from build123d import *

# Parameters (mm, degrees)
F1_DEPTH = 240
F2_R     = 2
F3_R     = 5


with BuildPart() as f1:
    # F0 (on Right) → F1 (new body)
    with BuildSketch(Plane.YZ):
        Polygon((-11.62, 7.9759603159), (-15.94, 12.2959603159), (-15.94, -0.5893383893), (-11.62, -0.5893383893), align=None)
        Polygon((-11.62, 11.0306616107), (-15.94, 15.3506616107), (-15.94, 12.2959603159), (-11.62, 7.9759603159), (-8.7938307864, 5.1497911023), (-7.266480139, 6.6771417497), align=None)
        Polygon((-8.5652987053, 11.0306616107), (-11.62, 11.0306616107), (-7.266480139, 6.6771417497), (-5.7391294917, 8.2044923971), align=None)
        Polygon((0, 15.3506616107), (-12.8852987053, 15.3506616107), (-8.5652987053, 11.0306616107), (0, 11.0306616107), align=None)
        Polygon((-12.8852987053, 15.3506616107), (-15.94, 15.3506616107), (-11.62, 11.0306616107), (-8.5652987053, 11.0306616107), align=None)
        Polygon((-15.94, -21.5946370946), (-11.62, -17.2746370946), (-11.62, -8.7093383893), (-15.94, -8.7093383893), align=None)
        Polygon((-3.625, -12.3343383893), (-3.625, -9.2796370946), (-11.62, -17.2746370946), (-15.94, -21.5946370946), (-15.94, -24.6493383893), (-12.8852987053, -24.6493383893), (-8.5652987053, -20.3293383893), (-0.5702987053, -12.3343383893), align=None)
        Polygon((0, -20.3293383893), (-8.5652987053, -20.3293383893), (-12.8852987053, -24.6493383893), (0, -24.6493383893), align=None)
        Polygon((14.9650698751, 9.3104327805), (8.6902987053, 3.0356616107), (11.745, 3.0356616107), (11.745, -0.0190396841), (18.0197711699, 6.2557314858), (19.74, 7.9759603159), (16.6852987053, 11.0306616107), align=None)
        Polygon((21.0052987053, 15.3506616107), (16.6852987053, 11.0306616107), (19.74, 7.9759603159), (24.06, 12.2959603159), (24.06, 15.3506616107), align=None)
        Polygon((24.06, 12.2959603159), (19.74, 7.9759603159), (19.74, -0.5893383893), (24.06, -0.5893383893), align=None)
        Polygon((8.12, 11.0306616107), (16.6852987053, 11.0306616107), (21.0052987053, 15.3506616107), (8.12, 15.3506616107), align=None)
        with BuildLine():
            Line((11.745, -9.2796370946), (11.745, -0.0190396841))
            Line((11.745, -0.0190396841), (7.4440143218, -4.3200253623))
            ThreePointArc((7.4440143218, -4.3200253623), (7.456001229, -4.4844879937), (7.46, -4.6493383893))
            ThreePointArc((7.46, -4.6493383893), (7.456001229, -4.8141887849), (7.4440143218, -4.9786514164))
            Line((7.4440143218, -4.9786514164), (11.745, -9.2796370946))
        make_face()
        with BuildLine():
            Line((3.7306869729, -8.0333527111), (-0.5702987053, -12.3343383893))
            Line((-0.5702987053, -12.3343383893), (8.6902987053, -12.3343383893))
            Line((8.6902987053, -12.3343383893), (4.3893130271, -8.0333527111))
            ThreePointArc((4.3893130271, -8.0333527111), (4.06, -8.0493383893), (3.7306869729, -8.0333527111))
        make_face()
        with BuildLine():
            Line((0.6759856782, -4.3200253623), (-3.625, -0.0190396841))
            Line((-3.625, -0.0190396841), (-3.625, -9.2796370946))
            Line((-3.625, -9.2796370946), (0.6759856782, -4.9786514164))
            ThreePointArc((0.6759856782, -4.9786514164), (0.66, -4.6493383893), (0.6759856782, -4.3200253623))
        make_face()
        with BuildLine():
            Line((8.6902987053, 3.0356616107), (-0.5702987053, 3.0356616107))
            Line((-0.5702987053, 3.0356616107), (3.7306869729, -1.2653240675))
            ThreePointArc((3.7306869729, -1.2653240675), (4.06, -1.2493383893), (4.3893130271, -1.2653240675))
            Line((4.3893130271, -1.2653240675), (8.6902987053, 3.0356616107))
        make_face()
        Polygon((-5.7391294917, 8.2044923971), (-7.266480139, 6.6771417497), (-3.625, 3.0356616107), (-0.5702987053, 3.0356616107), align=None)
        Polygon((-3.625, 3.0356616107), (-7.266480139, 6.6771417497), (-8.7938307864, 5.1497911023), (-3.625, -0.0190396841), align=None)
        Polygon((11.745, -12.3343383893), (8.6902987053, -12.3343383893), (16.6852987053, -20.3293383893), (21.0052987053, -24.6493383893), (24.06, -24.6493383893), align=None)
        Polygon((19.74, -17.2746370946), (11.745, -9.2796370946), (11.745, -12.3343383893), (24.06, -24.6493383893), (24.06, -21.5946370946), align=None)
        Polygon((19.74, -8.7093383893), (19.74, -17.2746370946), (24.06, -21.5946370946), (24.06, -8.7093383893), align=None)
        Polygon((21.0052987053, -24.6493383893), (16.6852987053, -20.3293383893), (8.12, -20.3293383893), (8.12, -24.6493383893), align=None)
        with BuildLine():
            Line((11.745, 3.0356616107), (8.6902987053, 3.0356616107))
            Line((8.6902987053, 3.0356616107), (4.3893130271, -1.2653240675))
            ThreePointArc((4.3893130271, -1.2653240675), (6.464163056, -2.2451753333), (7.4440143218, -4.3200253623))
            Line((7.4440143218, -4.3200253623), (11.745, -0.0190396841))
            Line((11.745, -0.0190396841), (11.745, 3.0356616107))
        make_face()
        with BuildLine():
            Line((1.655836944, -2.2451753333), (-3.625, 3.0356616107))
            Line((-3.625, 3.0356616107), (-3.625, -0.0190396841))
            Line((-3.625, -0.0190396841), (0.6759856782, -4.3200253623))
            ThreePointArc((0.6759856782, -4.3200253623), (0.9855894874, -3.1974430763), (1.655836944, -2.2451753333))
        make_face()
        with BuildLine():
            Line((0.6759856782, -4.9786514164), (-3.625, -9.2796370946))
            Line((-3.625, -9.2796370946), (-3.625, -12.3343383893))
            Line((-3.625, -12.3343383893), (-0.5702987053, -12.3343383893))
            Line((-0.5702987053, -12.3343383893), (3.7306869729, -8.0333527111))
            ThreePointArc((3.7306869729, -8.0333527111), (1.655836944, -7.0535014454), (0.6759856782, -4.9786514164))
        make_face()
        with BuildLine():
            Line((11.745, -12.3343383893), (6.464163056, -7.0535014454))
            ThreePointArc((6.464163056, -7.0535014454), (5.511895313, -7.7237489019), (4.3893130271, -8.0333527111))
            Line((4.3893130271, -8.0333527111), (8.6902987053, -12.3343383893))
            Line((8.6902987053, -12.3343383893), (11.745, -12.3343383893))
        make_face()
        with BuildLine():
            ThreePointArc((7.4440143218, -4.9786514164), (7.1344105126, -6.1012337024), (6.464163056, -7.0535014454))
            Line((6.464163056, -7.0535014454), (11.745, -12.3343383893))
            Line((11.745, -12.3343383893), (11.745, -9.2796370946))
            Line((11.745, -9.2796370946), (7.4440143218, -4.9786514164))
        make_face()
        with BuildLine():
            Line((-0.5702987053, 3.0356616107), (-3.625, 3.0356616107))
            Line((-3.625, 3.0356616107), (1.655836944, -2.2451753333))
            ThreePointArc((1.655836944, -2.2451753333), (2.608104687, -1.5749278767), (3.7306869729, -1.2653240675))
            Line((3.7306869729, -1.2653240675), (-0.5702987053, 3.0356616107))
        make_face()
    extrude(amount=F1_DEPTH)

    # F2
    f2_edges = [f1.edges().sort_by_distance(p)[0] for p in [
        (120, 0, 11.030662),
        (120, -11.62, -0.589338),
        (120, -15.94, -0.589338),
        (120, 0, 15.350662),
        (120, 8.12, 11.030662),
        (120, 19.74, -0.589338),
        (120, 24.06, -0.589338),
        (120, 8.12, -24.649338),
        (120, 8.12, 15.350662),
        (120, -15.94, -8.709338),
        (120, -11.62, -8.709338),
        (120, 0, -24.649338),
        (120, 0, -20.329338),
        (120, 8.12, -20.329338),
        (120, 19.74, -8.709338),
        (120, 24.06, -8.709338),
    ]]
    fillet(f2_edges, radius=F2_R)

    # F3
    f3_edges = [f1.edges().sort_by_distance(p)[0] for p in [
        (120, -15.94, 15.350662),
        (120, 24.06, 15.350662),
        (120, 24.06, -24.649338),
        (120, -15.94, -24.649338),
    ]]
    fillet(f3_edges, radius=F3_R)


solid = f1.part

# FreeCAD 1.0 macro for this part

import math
import FreeCAD as App
import Part
import Sketcher


def edges_at(feature, points):
    """Names of the edges that pass closest to the given points."""
    edges = feature.Shape.Edges
    near = lambda p: min(range(len(edges)), key=lambda i: edges[i].distToShape(Part.Vertex(*p))[0])
    return sorted({f"Edge{near(p) + 1}" for p in points})

doc = App.newDocument("Part")
params = doc.addObject("Spreadsheet::Sheet", "Params")
for row, (alias, value) in enumerate([
    ("sketch1_radius", "3.4 mm"),
    ("sketch1_width", "15.94 mm"),
    ("sketch1_width2", "4.32 mm"),
    ("pad1_length", "240 mm"),
    ("fillet_radius", "2 mm"),
    ("fillet2_radius", "5 mm"),
], start=1):
    params.set(f"A{row}", alias)
    params.set(f"B{row}", "=" + value)
    params.setAlias(f"B{row}", alias)

body = doc.addObject("PartDesign::Body", "Body")

sketch1 = body.newObject("Sketcher::SketchObject", "Sketch")
sketch1.AttachmentSupport = (doc.getObject("YZ_Plane"), [""])
sketch1.MapMode = "FlatFace"
sketch1.addGeometry([
    Part.LineSegment(App.Vector(8.69, 3.04, 0), App.Vector(-0.57, 3.04, 0)),
    Part.LineSegment(App.Vector(-0.57, 3.04, 0), App.Vector(-8.57, 11.03, 0)),
    Part.LineSegment(App.Vector(-8.57, 11.03, 0), App.Vector(0, 11.03, 0)),
    Part.LineSegment(App.Vector(0, 11.03, 0), App.Vector(0, 15.35, 0)),
    Part.LineSegment(App.Vector(0, 15.35, 0), App.Vector(-15.94, 15.35, 0)),
    Part.LineSegment(App.Vector(-15.94, 15.35, 0), App.Vector(-15.94, -0.59, 0)),
    Part.LineSegment(App.Vector(-15.94, -0.59, 0), App.Vector(-11.62, -0.59, 0)),
    Part.LineSegment(App.Vector(-11.62, -0.59, 0), App.Vector(-11.62, 7.98, 0)),
    Part.LineSegment(App.Vector(-11.62, 7.98, 0), App.Vector(-3.62, -0.02, 0)),
    Part.LineSegment(App.Vector(-3.62, -0.02, 0), App.Vector(-3.62, -9.28, 0)),
    Part.LineSegment(App.Vector(-3.62, -9.28, 0), App.Vector(-11.62, -17.27, 0)),
    Part.LineSegment(App.Vector(-11.62, -17.27, 0), App.Vector(-11.62, -8.71, 0)),
    Part.LineSegment(App.Vector(-11.62, -8.71, 0), App.Vector(-15.94, -8.71, 0)),
    Part.LineSegment(App.Vector(-15.94, -8.71, 0), App.Vector(-15.94, -24.65, 0)),
    Part.LineSegment(App.Vector(-15.94, -24.65, 0), App.Vector(0, -24.65, 0)),
    Part.LineSegment(App.Vector(0, -24.65, 0), App.Vector(0, -20.33, 0)),
    Part.LineSegment(App.Vector(0, -20.33, 0), App.Vector(-8.57, -20.33, 0)),
    Part.LineSegment(App.Vector(-8.57, -20.33, 0), App.Vector(-0.57, -12.33, 0)),
    Part.LineSegment(App.Vector(-0.57, -12.33, 0), App.Vector(8.69, -12.33, 0)),
    Part.LineSegment(App.Vector(8.69, -12.33, 0), App.Vector(16.69, -20.33, 0)),
    Part.LineSegment(App.Vector(16.69, -20.33, 0), App.Vector(8.12, -20.33, 0)),
    Part.LineSegment(App.Vector(8.12, -20.33, 0), App.Vector(8.12, -24.65, 0)),
    Part.LineSegment(App.Vector(8.12, -24.65, 0), App.Vector(24.06, -24.65, 0)),
    Part.LineSegment(App.Vector(24.06, -24.65, 0), App.Vector(24.06, -8.71, 0)),
    Part.LineSegment(App.Vector(24.06, -8.71, 0), App.Vector(19.74, -8.71, 0)),
    Part.LineSegment(App.Vector(19.74, -8.71, 0), App.Vector(19.74, -17.27, 0)),
    Part.LineSegment(App.Vector(19.74, -17.27, 0), App.Vector(11.74, -9.28, 0)),
    Part.LineSegment(App.Vector(11.74, -9.28, 0), App.Vector(11.74, -0.02, 0)),
    Part.LineSegment(App.Vector(11.74, -0.02, 0), App.Vector(19.74, 7.98, 0)),
    Part.LineSegment(App.Vector(19.74, 7.98, 0), App.Vector(19.74, -0.59, 0)),
    Part.LineSegment(App.Vector(19.74, -0.59, 0), App.Vector(24.06, -0.59, 0)),
    Part.LineSegment(App.Vector(24.06, -0.59, 0), App.Vector(24.06, 15.35, 0)),
    Part.LineSegment(App.Vector(24.06, 15.35, 0), App.Vector(8.12, 15.35, 0)),
    Part.LineSegment(App.Vector(8.12, 15.35, 0), App.Vector(8.12, 11.03, 0)),
    Part.LineSegment(App.Vector(8.12, 11.03, 0), App.Vector(16.69, 11.03, 0)),
    Part.LineSegment(App.Vector(16.69, 11.03, 0), App.Vector(8.69, 3.04, 0)),
    Part.ArcOfCircle(Part.Circle(App.Vector(4.06, -4.65, 0), App.Vector(0, 0, 1), 3.4), math.radians(135), math.radians(174)),
    Part.ArcOfCircle(Part.Circle(App.Vector(4.06, -4.65, 0), App.Vector(0, 0, 1), 3.4), math.radians(96), math.radians(135)),
    Part.ArcOfCircle(Part.Circle(App.Vector(4.06, -4.65, 0), App.Vector(0, 0, 1), 3.4), math.radians(84.44), math.radians(95.56)),
    Part.ArcOfCircle(Part.Circle(App.Vector(4.06, -4.65, 0), App.Vector(0, 0, 1), 3.4), math.radians(6), math.radians(84)),
    Part.ArcOfCircle(Part.Circle(App.Vector(4.06, -4.65, 0), App.Vector(0, 0, 1), 3.4), math.radians(0), math.radians(5.56)),
    Part.ArcOfCircle(Part.Circle(App.Vector(4.06, -4.65, 0), App.Vector(0, 0, 1), 3.4), math.radians(-5.56), math.radians(0)),
    Part.ArcOfCircle(Part.Circle(App.Vector(4.06, -4.65, 0), App.Vector(0, 0, 1), 3.4), math.radians(-45), math.radians(-6)),
    Part.ArcOfCircle(Part.Circle(App.Vector(4.06, -4.65, 0), App.Vector(0, 0, 1), 3.4), math.radians(-84), math.radians(-45)),
    Part.ArcOfCircle(Part.Circle(App.Vector(4.06, -4.65, 0), App.Vector(0, 0, 1), 3.4), math.radians(-95.56), math.radians(-84.44)),
    Part.ArcOfCircle(Part.Circle(App.Vector(4.06, -4.65, 0), App.Vector(0, 0, 1), 3.4), math.radians(-174), math.radians(-96)),
    Part.ArcOfCircle(Part.Circle(App.Vector(4.06, -4.65, 0), App.Vector(0, 0, 1), 3.4), math.radians(174.44), math.radians(185.56)),
], False)
sketch1.addConstraint([
    Sketcher.Constraint("Coincident", 0, 2, 1, 1),
    Sketcher.Constraint("Coincident", 1, 2, 2, 1),
    Sketcher.Constraint("Coincident", 2, 2, 3, 1),
    Sketcher.Constraint("Coincident", 3, 2, 4, 1),
    Sketcher.Constraint("Coincident", 4, 2, 5, 1),
    Sketcher.Constraint("Coincident", 5, 2, 6, 1),
    Sketcher.Constraint("Coincident", 6, 2, 7, 1),
    Sketcher.Constraint("Coincident", 7, 2, 8, 1),
    Sketcher.Constraint("Coincident", 8, 2, 9, 1),
    Sketcher.Constraint("Coincident", 9, 2, 10, 1),
    Sketcher.Constraint("Coincident", 10, 2, 11, 1),
    Sketcher.Constraint("Coincident", 11, 2, 12, 1),
    Sketcher.Constraint("Coincident", 12, 2, 13, 1),
    Sketcher.Constraint("Coincident", 13, 2, 14, 1),
    Sketcher.Constraint("Coincident", 14, 2, 15, 1),
    Sketcher.Constraint("Coincident", 15, 2, 16, 1),
    Sketcher.Constraint("Coincident", 16, 2, 17, 1),
    Sketcher.Constraint("Coincident", 17, 2, 18, 1),
    Sketcher.Constraint("Coincident", 18, 2, 19, 1),
    Sketcher.Constraint("Coincident", 19, 2, 20, 1),
    Sketcher.Constraint("Coincident", 20, 2, 21, 1),
    Sketcher.Constraint("Coincident", 21, 2, 22, 1),
    Sketcher.Constraint("Coincident", 22, 2, 23, 1),
    Sketcher.Constraint("Coincident", 23, 2, 24, 1),
    Sketcher.Constraint("Coincident", 24, 2, 25, 1),
    Sketcher.Constraint("Coincident", 25, 2, 26, 1),
    Sketcher.Constraint("Coincident", 26, 2, 27, 1),
    Sketcher.Constraint("Coincident", 27, 2, 28, 1),
    Sketcher.Constraint("Coincident", 28, 2, 29, 1),
    Sketcher.Constraint("Coincident", 29, 2, 30, 1),
    Sketcher.Constraint("Coincident", 30, 2, 31, 1),
    Sketcher.Constraint("Coincident", 31, 2, 32, 1),
    Sketcher.Constraint("Coincident", 32, 2, 33, 1),
    Sketcher.Constraint("Coincident", 33, 2, 34, 1),
    Sketcher.Constraint("Coincident", 34, 2, 35, 1),
    Sketcher.Constraint("Coincident", 35, 2, 0, 1),
    Sketcher.Constraint("Tangent", 36, 1, 37, 2),
    Sketcher.Constraint("Tangent", 37, 1, 38, 2),
    Sketcher.Constraint("Tangent", 38, 1, 39, 2),
    Sketcher.Constraint("Tangent", 39, 1, 40, 2),
    Sketcher.Constraint("Tangent", 40, 1, 41, 2),
    Sketcher.Constraint("Tangent", 41, 1, 42, 2),
    Sketcher.Constraint("Tangent", 42, 1, 43, 2),
    Sketcher.Constraint("Tangent", 43, 1, 44, 2),
    Sketcher.Constraint("Tangent", 44, 1, 45, 2),
    Sketcher.Constraint("Tangent", 45, 1, 46, 2),
    Sketcher.Constraint("Tangent", 46, 1, 36, 2),
    Sketcher.Constraint("Horizontal", 0),
    Sketcher.Constraint("Horizontal", 2),
    Sketcher.Constraint("Vertical", 3),
    Sketcher.Constraint("Horizontal", 4),
    Sketcher.Constraint("Vertical", 5),
    Sketcher.Constraint("Horizontal", 6),
    Sketcher.Constraint("Vertical", 7),
    Sketcher.Constraint("Vertical", 9),
    Sketcher.Constraint("Vertical", 11),
    Sketcher.Constraint("Horizontal", 12),
    Sketcher.Constraint("Vertical", 13),
    Sketcher.Constraint("Horizontal", 14),
    Sketcher.Constraint("Vertical", 15),
    Sketcher.Constraint("Horizontal", 16),
    Sketcher.Constraint("Horizontal", 18),
    Sketcher.Constraint("Horizontal", 20),
    Sketcher.Constraint("Vertical", 21),
    Sketcher.Constraint("Horizontal", 22),
    Sketcher.Constraint("Vertical", 23),
    Sketcher.Constraint("Horizontal", 24),
    Sketcher.Constraint("Vertical", 25),
    Sketcher.Constraint("Vertical", 27),
    Sketcher.Constraint("Vertical", 29),
    Sketcher.Constraint("Horizontal", 30),
    Sketcher.Constraint("Vertical", 31),
    Sketcher.Constraint("Horizontal", 32),
    Sketcher.Constraint("Vertical", 33),
    Sketcher.Constraint("Horizontal", 34),
    Sketcher.Constraint("Coincident", 38, 3, 36, 3),
    Sketcher.Constraint("Coincident", 40, 3, 36, 3),
    Sketcher.Constraint("Coincident", 42, 3, 36, 3),
    Sketcher.Constraint("Coincident", 44, 3, 36, 3),
    Sketcher.Constraint("PointOnObject", 2, 2, -2),
    Sketcher.Constraint("PointOnObject", 14, 2, -2),
    Sketcher.Constraint("Parallel", 1, 8),
    Sketcher.Constraint("Perpendicular", 8, 10),
    Sketcher.Constraint("Parallel", 10, 17),
    Sketcher.Constraint("Perpendicular", 17, 19),
    Sketcher.Constraint("Parallel", 19, 26),
    Sketcher.Constraint("Perpendicular", 26, 28),
    Sketcher.Constraint("Parallel", 28, 35),
    Sketcher.Constraint("Horizontal", 16, 2, 19, 2),
    Sketcher.Constraint("Horizontal", 14, 2, 21, 2),
    Sketcher.Constraint("Horizontal", 12, 2, 23, 2),
    Sketcher.Constraint("Horizontal", 10, 2, 25, 2),
    Sketcher.Constraint("Horizontal", 9, 2, 26, 2),
    Sketcher.Constraint("Horizontal", 8, 2, 27, 2),
    Sketcher.Constraint("Horizontal", 7, 2, 28, 2),
    Sketcher.Constraint("Horizontal", 6, 2, 29, 2),
    Sketcher.Constraint("Horizontal", 4, 2, 31, 2),
    Sketcher.Constraint("Horizontal", 2, 2, 33, 2),
    Sketcher.Constraint("Horizontal", 37, 1, 38, 1),
    Sketcher.Constraint("Horizontal", 46, 3, 40, 1),
    Sketcher.Constraint("Horizontal", 43, 1, 44, 1),
    Sketcher.Constraint("Horizontal", 41, 1, 45, 1),
    Sketcher.Constraint("Horizontal", 39, 1, 46, 1),
    Sketcher.Constraint("Vertical", 7, 2, 10, 2),
    Sketcher.Constraint("Vertical", 5, 2, 12, 2),
    Sketcher.Constraint("Vertical", 1, 2, 16, 2),
    Sketcher.Constraint("Vertical", 0, 2, 17, 2),
    Sketcher.Constraint("Vertical", 25, 2, 28, 2),
    Sketcher.Constraint("Vertical", 23, 2, 30, 2),
    Sketcher.Constraint("Vertical", 21, 2, 32, 2),
    Sketcher.Constraint("Vertical", 19, 2, 34, 2),
    Sketcher.Constraint("Vertical", 39, 1, 41, 1),
    Sketcher.Constraint("Vertical", 38, 1, 43, 1),
    Sketcher.Constraint("Equal", 16, 20),
    Sketcher.Constraint("Equal", 14, 22),
    Sketcher.Constraint("Equal", 12, 24),
    Sketcher.Constraint("Equal", 30, 3),
    Sketcher.Constraint("Equal", 32, 5),
    Sketcher.Constraint("Equal", 34, 7),
    Sketcher.Constraint("Equal", 18, 9),
    Sketcher.Constraint("Equal", 7, 11),
    Sketcher.Constraint("Equal", 5, 13),
    Sketcher.Constraint("Equal", 3, 15),
    Sketcher.Constraint("Equal", 1, 8),
    Sketcher.Constraint("Radius", 36, 3.4),
    Sketcher.Constraint("DistanceY", 38, 3, 3, 2, 20.0),
    Sketcher.Constraint("DistanceX", 4, 2, 46, 3, 20.0),
    Sketcher.Constraint("DistanceY", 14, 2, 44, 3, 20.0),
    Sketcher.Constraint("DistanceX", 4, 2, 4, 1, 15.94),
    Sketcher.Constraint("DistanceX", 6, 1, 6, 2, 4.32),
    Sketcher.Constraint("DistanceX", 2, 1, 2, 2, 8.565299),
    Sketcher.Constraint("DistanceX", 8, 2, -1, 1, 3.625),
    Sketcher.Constraint("DistanceY", 42, 1, -1, 1, 7.053501),
    Sketcher.Constraint("DistanceY", 36, 3, -1, 1, 4.649338),
    Sketcher.Constraint("DistanceY", 41, 1, -1, 1, 4.978651),
    Sketcher.Constraint("DistanceX", 36, 1, 37, 1, 2.07485),
    Sketcher.Constraint("DistanceY", 36, 1, 37, 1, 0.979851),
])
sketch1.setExpression("Constraints[124]", "Params.sketch1_radius")
sketch1.setExpression("Constraints[128]", "Params.sketch1_width")
sketch1.setExpression("Constraints[129]", "Params.sketch1_width2")
pad1 = body.newObject("PartDesign::Pad", "Pad")
pad1.Profile = sketch1
pad1.setExpression("Length", "Params.pad1_length")
doc.recompute()

fillet = body.newObject("PartDesign::Fillet", "Fillet")
fillet.Base = (pad1, edges_at(pad1, [
    (120, 0, 11.031),
    (120, -11.62, -0.589),
    (120, -15.94, -0.589),
    (120, 0, 15.351),
    (120, 8.12, 11.031),
    (120, 19.74, -0.589),
    (120, 24.06, -0.589),
    (120, 8.12, -24.649),
    (120, 8.12, 15.351),
    (120, -15.94, -8.709),
    (120, -11.62, -8.709),
    (120, 0, -24.649),
    (120, 0, -20.329),
    (120, 8.12, -20.329),
    (120, 19.74, -8.709),
    (120, 24.06, -8.709),
]))
fillet.setExpression("Radius", "Params.fillet_radius")
doc.recompute()

fillet2 = body.newObject("PartDesign::Fillet", "Fillet001")
fillet2.Base = (fillet, edges_at(fillet, [
    (120, -15.94, 15.351),
    (120, 24.06, 15.351),
    (120, 24.06, -24.649),
    (120, -15.94, -24.649),
]))
fillet2.setExpression("Radius", "Params.fillet2_radius")

doc.recompute()
